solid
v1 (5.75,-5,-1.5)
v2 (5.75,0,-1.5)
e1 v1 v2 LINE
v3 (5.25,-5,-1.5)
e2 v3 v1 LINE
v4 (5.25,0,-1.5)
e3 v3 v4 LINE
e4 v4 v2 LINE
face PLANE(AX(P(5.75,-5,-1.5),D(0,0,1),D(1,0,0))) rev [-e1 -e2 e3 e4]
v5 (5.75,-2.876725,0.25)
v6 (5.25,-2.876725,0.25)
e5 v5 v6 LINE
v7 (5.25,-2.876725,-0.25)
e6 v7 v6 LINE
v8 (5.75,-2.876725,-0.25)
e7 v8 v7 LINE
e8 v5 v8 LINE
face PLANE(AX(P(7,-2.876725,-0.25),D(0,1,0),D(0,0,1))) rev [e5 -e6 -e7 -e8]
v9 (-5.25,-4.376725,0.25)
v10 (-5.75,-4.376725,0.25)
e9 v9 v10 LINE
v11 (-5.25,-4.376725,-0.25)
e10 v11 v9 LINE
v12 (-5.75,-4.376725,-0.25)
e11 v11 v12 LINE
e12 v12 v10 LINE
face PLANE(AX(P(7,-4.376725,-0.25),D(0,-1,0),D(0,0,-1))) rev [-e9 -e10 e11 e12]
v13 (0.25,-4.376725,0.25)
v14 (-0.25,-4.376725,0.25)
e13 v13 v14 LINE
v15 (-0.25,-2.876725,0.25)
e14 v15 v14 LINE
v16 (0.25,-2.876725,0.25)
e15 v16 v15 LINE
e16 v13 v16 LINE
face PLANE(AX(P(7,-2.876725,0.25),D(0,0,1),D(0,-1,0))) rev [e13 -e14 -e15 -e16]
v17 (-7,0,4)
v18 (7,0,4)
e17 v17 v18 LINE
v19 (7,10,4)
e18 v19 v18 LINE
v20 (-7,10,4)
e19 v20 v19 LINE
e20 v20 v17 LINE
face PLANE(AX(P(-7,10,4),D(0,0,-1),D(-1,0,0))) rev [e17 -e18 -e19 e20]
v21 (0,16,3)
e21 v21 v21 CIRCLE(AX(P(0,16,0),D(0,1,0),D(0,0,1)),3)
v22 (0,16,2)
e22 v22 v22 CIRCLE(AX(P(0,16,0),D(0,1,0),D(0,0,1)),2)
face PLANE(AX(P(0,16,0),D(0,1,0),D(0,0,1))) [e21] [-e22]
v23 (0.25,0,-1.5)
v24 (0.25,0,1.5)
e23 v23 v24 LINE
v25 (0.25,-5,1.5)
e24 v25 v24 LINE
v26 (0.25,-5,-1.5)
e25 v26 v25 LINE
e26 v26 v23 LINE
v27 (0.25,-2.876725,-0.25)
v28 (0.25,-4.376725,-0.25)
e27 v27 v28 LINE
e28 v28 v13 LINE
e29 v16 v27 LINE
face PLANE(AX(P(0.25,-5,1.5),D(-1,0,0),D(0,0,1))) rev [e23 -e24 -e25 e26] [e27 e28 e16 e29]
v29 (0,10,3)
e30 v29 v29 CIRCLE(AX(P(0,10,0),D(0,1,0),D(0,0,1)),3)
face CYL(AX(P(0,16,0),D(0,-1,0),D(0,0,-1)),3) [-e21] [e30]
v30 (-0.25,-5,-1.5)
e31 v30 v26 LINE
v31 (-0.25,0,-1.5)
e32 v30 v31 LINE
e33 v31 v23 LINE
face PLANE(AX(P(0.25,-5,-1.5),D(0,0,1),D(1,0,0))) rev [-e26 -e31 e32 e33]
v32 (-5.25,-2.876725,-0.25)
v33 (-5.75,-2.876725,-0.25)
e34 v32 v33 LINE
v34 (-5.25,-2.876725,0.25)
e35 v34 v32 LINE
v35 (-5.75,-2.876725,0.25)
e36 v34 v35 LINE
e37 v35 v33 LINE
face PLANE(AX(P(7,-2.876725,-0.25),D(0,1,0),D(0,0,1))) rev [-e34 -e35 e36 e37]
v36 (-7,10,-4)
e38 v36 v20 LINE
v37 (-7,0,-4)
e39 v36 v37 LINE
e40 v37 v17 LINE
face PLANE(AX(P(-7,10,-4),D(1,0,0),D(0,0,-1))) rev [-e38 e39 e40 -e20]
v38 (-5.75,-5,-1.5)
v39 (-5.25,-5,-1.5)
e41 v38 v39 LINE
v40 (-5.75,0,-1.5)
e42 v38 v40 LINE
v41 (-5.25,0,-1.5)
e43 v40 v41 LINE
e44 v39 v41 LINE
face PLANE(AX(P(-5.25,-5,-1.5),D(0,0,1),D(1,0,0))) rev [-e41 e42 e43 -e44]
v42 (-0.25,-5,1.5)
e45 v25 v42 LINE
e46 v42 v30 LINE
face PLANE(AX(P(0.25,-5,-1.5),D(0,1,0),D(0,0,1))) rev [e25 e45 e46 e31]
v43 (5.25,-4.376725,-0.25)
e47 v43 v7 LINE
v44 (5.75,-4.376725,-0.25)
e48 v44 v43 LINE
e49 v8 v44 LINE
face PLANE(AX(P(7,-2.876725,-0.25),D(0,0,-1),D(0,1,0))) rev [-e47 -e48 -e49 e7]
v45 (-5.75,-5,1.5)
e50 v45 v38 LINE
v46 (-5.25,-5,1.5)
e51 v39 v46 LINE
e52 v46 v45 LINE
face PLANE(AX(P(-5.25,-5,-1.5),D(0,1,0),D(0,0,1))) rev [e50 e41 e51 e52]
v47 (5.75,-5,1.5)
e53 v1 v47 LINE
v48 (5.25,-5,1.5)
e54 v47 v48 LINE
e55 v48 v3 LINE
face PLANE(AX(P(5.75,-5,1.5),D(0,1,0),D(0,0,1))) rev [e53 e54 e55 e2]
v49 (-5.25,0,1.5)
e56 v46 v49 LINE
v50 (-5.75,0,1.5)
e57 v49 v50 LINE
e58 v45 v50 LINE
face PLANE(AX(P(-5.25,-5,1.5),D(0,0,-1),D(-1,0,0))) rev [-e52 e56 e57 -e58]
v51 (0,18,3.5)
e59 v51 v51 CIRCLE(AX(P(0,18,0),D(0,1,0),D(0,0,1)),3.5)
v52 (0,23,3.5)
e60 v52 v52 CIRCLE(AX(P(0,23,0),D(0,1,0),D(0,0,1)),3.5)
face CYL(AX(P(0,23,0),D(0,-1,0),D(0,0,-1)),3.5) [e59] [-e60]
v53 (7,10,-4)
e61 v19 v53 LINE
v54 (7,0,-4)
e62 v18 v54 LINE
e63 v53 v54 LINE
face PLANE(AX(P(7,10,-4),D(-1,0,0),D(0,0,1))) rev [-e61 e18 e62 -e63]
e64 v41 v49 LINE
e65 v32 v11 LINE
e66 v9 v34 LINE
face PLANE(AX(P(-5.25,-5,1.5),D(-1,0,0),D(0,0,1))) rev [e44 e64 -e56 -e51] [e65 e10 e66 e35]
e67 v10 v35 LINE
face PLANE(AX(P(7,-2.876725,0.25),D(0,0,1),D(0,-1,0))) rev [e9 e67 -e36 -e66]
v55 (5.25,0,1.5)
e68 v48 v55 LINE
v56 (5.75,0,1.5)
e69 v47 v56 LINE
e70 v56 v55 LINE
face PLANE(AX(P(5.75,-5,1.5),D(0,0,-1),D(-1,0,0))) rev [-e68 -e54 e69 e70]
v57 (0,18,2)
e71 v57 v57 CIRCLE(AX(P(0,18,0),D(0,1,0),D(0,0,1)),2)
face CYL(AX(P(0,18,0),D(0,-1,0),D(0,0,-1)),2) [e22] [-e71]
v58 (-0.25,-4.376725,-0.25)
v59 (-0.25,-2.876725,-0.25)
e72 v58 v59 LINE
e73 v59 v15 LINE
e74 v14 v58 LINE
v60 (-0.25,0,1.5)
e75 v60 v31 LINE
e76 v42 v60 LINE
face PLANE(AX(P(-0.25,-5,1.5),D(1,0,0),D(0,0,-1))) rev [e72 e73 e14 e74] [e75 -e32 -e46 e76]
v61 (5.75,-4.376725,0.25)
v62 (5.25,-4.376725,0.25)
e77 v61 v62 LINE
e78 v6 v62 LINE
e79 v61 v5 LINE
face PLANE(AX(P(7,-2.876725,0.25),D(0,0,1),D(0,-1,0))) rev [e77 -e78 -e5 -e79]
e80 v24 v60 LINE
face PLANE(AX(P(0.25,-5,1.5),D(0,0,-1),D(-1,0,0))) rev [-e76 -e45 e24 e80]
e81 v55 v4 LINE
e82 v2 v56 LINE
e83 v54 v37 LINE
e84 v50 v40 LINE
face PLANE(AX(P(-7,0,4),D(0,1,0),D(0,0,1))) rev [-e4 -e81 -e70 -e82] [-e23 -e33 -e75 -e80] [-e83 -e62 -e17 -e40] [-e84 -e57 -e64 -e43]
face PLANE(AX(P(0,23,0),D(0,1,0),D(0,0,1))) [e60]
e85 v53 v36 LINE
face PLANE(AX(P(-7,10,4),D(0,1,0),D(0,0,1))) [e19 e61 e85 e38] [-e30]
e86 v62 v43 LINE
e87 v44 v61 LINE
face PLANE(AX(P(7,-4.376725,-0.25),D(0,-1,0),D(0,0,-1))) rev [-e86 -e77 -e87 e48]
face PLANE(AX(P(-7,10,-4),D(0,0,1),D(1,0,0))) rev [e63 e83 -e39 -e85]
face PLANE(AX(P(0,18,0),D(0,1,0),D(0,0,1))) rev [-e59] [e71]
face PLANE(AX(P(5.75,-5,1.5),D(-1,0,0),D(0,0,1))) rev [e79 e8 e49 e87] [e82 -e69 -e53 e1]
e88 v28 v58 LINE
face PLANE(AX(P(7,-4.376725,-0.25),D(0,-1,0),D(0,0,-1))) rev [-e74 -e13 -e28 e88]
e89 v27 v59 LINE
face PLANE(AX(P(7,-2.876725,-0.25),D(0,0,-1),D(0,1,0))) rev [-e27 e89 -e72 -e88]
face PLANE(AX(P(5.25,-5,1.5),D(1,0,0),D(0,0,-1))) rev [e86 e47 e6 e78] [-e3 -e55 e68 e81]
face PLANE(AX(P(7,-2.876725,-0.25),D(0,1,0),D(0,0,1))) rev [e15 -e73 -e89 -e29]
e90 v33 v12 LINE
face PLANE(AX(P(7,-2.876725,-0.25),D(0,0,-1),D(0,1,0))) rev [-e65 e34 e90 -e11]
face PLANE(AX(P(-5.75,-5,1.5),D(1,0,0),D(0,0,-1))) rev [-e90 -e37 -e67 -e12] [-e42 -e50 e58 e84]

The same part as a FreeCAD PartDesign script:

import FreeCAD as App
import Part
import Sketcher

V = App.Vector
Q = App.Units.Quantity

doc = App.newDocument("Part")
body = doc.addObject("PartDesign::Body", "Body")

# Sketch on XZ plane
sketch1 = doc.addObject("Sketcher::SketchObject", "Sketch")
body.addObject(sketch1)
sketch1.AttachmentSupport = (doc.XZ_Plane, [""])
sketch1.MapMode = "FlatFace"
sketch1.addGeometry([
    Part.LineSegment(V(-7, -4, 0), V(-7, 4, 0)),
    Part.LineSegment(V(-7, 4, 0), V(7, 4, 0)),
    Part.LineSegment(V(7, 4, 0), V(7, -4, 0)),
    Part.LineSegment(V(7, -4, 0), V(-7, -4, 0)),
], False)
sketch1.addConstraint([
    Sketcher.Constraint("Coincident", 0, 2, 1, 1),
    Sketcher.Constraint("Coincident", 1, 2, 2, 1),
    Sketcher.Constraint("Coincident", 2, 2, 3, 1),
    Sketcher.Constraint("Coincident", 3, 2, 0, 1),
    Sketcher.Constraint("Vertical", 0),
    Sketcher.Constraint("Horizontal", 1),
    Sketcher.Constraint("Vertical", 2),
    Sketcher.Constraint("Horizontal", 3),
    Sketcher.Constraint("Symmetric", 0, 2, 2, 2, -1, 1),
    Sketcher.Constraint("DistanceX", 1, 1, 1, 2, Q("14 mm")),
    Sketcher.Constraint("DistanceY", 0, 1, 0, 2, Q("8 mm")),
])
pad1 = doc.addObject("PartDesign::Pad", "Pad")
body.addObject(pad1)
pad1.Profile = sketch1
pad1.Length = 10
pad1.Reversed = True

# Sketch on XZ plane
sketch2 = doc.addObject("Sketcher::SketchObject", "Sketch001")
body.addObject(sketch2)
sketch2.AttachmentSupport = (doc.XZ_Plane, [""])
sketch2.MapMode = "FlatFace"
sketch2.AttachmentOffset = App.Placement(V(0, 0, -10), App.Rotation())
sketch2.addGeometry(Part.Circle(V(0, 0, 0), V(0, 0, 1), 3), False)
sketch2.addConstraint([
    Sketcher.Constraint("Coincident", 0, 3, -1, 1),
    Sketcher.Constraint("Diameter", 0, Q("6 mm")),
])
pad2 = doc.addObject("PartDesign::Pad", "Pad001")
body.addObject(pad2)
pad2.Profile = sketch2
pad2.Length = 6
pad2.Reversed = True

# Sketch on XZ plane
sketch3 = doc.addObject("Sketcher::SketchObject", "Sketch002")
body.addObject(sketch3)
sketch3.AttachmentSupport = (doc.XZ_Plane, [""])
sketch3.MapMode = "FlatFace"
sketch3.AttachmentOffset = App.Placement(V(0, 0, -16), App.Rotation())
sketch3.addGeometry(Part.Circle(V(0, 0, 0), V(0, 0, 1), 2), False)
sketch3.addConstraint([
    Sketcher.Constraint("Coincident", 0, 3, -1, 1),
    Sketcher.Constraint("Diameter", 0, Q("4 mm")),
])
pad3 = doc.addObject("PartDesign::Pad", "Pad002")
body.addObject(pad3)
pad3.Profile = sketch3
pad3.Length = 2
pad3.Reversed = True

# Sketch on XZ plane
sketch4 = doc.addObject("Sketcher::SketchObject", "Sketch003")
body.addObject(sketch4)
sketch4.AttachmentSupport = (doc.XZ_Plane, [""])
sketch4.MapMode = "FlatFace"
sketch4.AttachmentOffset = App.Placement(V(0, 0, -18), App.Rotation())
sketch4.addGeometry(Part.Circle(V(0, 0, 0), V(0, 0, 1), 3.5), False)
sketch4.addConstraint([
    Sketcher.Constraint("Coincident", 0, 3, -1, 1),
    Sketcher.Constraint("Diameter", 0, Q("7 mm")),
])
pad4 = doc.addObject("PartDesign::Pad", "Pad003")
body.addObject(pad4)
pad4.Profile = sketch4
pad4.Length = 5
pad4.Reversed = True

# Sketch on XZ plane
sketch5 = doc.addObject("Sketcher::SketchObject", "Sketch004")
body.addObject(sketch5)
sketch5.AttachmentSupport = (doc.XZ_Plane, [""])
sketch5.MapMode = "FlatFace"
sketch5.addGeometry([
    Part.LineSegment(V(-0.2, 1.5, 0), V(-0.2, -1.5, 0)),
    Part.LineSegment(V(-0.2, -1.5, 0), V(0.2, -1.5, 0)),
    Part.LineSegment(V(0.2, -1.5, 0), V(0.2, 1.5, 0)),
    Part.LineSegment(V(0.2, 1.5, 0), V(-0.2, 1.5, 0)),
], False)
sketch5.addConstraint([
    Sketcher.Constraint("Coincident", 0, 2, 1, 1),
    Sketcher.Constraint("Coincident", 1, 2, 2, 1),
    Sketcher.Constraint("Coincident", 2, 2, 3, 1),
    Sketcher.Constraint("Coincident", 3, 2, 0, 1),
    Sketcher.Constraint("Vertical", 0),
    Sketcher.Constraint("Horizontal", 1),
    Sketcher.Constraint("Vertical", 2),
    Sketcher.Constraint("Horizontal", 3),
    Sketcher.Constraint("Symmetric", 0, 2, 2, 2, -1, 1),
    Sketcher.Constraint("DistanceY", 0, 2, 0, 1, Q("3 mm")),
    Sketcher.Constraint("DistanceX", 1, 1, 1, 2, Q("0.5 mm")),
])
pad5 = doc.addObject("PartDesign::Pad", "Pad004")
body.addObject(pad5)
pad5.Profile = sketch5
pad5.Length = 5

# Sketch on XZ plane
sketch6 = doc.addObject("Sketcher::SketchObject", "Sketch005")
body.addObject(sketch6)
sketch6.AttachmentSupport = (doc.XZ_Plane, [""])
sketch6.MapMode = "FlatFace"
sketch6.addGeometry([
    Part.LineSegment(V(5.2, 1.5, 0), V(5.2, -1.5, 0)),
    Part.LineSegment(V(5.2, -1.5, 0), V(5.8, -1.5, 0)),
    Part.LineSegment(V(5.8, -1.5, 0), V(5.8, 1.5, 0)),
    Part.LineSegment(V(5.8, 1.5, 0), V(5.2, 1.5, 0)),
], False)
sketch6.addConstraint([
    Sketcher.Constraint("Coincident", 0, 2, 1, 1),
    Sketcher.Constraint("Coincident", 1, 2, 2, 1),
    Sketcher.Constraint("Coincident", 2, 2, 3, 1),
    Sketcher.Constraint("Coincident", 3, 2, 0, 1),
    Sketcher.Constraint("Vertical", 0),
    Sketcher.Constraint("Horizontal", 1),
    Sketcher.Constraint("Vertical", 2),
    Sketcher.Constraint("Horizontal", 3),
    Sketcher.Constraint("DistanceY", 0, 2, 0, 1, Q("3 mm")),
    Sketcher.Constraint("DistanceX", 1, 1, 1, 2, Q("0.5 mm")),
    Sketcher.Constraint("DistanceY", 0, 2, -1, 1, Q("1.5 mm")),
    Sketcher.Constraint("DistanceX", -1, 1, 0, 2, Q("5.25 mm")),
])
pad6 = doc.addObject("PartDesign::Pad", "Pad005")
body.addObject(pad6)
pad6.Profile = sketch6
pad6.Length = 5

# Sketch on XZ plane
sketch7 = doc.addObject("Sketcher::SketchObject", "Sketch006")
body.addObject(sketch7)
sketch7.AttachmentSupport = (doc.XZ_Plane, [""])
sketch7.MapMode = "FlatFace"
sketch7.addGeometry([
    Part.LineSegment(V(-5.8, 1.5, 0), V(-5.8, -1.5, 0)),
    Part.LineSegment(V(-5.8, -1.5, 0), V(-5.2, -1.5, 0)),
    Part.LineSegment(V(-5.2, -1.5, 0), V(-5.2, 1.5, 0)),
    Part.LineSegment(V(-5.2, 1.5, 0), V(-5.8, 1.5, 0)),
], False)
sketch7.addConstraint([
    Sketcher.Constraint("Coincident", 0, 2, 1, 1),
    Sketcher.Constraint("Coincident", 1, 2, 2, 1),
    Sketcher.Constraint("Coincident", 2, 2, 3, 1),
    Sketcher.Constraint("Coincident", 3, 2, 0, 1),
    Sketcher.Constraint("Vertical", 0),
    Sketcher.Constraint("Horizontal", 1),
    Sketcher.Constraint("Vertical", 2),
    Sketcher.Constraint("Horizontal", 3),
    Sketcher.Constraint("DistanceY", 0, 2, 0, 1, Q("3 mm")),
    Sketcher.Constraint("DistanceX", 1, 1, 1, 2, Q("0.5 mm")),
    Sketcher.Constraint("DistanceY", 0, 2, -1, 1, Q("1.5 mm")),
    Sketcher.Constraint("DistanceX", 0, 2, -1, 1, Q("5.75 mm")),
])
pad7 = doc.addObject("PartDesign::Pad", "Pad006")
body.addObject(pad7)
pad7.Profile = sketch7
pad7.Length = 5

# Sketch on YZ plane
sketch8 = doc.addObject("Sketcher::SketchObject", "Sketch007")
body.addObject(sketch8)
sketch8.AttachmentSupport = (doc.YZ_Plane, [""])
sketch8.MapMode = "FlatFace"
sketch8.AttachmentOffset = App.Placement(V(0, 0, -5.75), App.Rotation())
sketch8.addGeometry([
    Part.LineSegment(V(-2.9, -0.2, 0), V(-4.4, -0.2, 0)),
    Part.LineSegment(V(-4.4, -0.2, 0), V(-4.4, 0.2, 0)),
    Part.LineSegment(V(-4.4, 0.2, 0), V(-2.9, 0.2, 0)),
    Part.LineSegment(V(-2.9, 0.2, 0), V(-2.9, -0.2, 0)),
], False)
sketch8.addConstraint([
    Sketcher.Constraint("Coincident", 0, 2, 1, 1),
    Sketcher.Constraint("Coincident", 1, 2, 2, 1),
    Sketcher.Constraint("Coincident", 2, 2, 3, 1),
    Sketcher.Constraint("Coincident", 3, 2, 0, 1),
    Sketcher.Constraint("Horizontal", 0),
    Sketcher.Constraint("Vertical", 1),
    Sketcher.Constraint("Horizontal", 2),
    Sketcher.Constraint("Vertical", 3),
    Sketcher.Constraint("DistanceX", 0, 2, 0, 1, Q("1.5 mm")),
    Sketcher.Constraint("DistanceY", 1, 1, 1, 2, Q("0.5 mm")),
    Sketcher.Constraint("DistanceY", 0, 2, -1, 1, Q("0.25 mm")),
    Sketcher.Constraint("DistanceX", 0, 2, -1, 1, Q("4.376725 mm")),
])
pocket1 = doc.addObject("PartDesign::Pocket", "Pocket")
body.addObject(pocket1)
pocket1.Profile = sketch8
pocket1.Type = "ThroughAll"
pocket1.Reversed = True

doc.recompute()
